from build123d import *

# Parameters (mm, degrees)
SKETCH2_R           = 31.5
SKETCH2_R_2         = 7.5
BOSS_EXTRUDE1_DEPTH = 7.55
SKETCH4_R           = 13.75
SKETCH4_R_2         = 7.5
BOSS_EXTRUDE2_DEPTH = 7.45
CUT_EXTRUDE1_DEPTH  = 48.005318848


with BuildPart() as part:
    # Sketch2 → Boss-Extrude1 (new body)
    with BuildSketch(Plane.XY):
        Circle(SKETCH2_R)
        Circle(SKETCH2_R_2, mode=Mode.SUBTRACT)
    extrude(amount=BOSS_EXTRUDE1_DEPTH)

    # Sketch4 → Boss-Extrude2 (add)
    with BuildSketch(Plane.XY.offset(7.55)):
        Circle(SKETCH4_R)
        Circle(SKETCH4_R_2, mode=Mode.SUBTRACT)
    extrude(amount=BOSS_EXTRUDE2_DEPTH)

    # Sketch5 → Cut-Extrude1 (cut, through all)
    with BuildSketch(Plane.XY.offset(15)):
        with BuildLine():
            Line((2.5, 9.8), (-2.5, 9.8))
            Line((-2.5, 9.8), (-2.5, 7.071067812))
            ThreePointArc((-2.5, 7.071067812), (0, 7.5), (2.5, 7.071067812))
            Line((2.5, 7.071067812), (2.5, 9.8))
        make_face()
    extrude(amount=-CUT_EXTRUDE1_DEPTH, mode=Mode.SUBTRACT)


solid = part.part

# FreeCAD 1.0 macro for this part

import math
import FreeCAD as App
import Part
import Sketcher

doc = App.newDocument("Part")
body = doc.addObject("PartDesign::Body", "Body")

# Sketch on XY plane
sketch1 = doc.addObject("Sketcher::SketchObject", "Sketch")
body.addObject(sketch1)
sketch1.AttachmentSupport = (doc.XY_Plane, [""])
sketch1.MapMode = "FlatFace"
sketch1.addGeometry([
    Part.Circle(App.Vector(0, 0, 0), App.Vector(0, 0, 1), 32),
    Part.Circle(App.Vector(0, 0, 0), App.Vector(0, 0, 1), 8),
], False)
sketch1.addConstraint([
    Sketcher.Constraint("Coincident", 0, 3, -1, 1),
    Sketcher.Constraint("Coincident", 1, 3, -1, 1),
    Sketcher.Constraint("Diameter", 0, 63.0),
    Sketcher.Constraint("Diameter", 1, 15.0),
])
pad1 = doc.addObject("PartDesign::Pad", "Pad")
body.addObject(pad1)
pad1.Profile = sketch1
pad1.Length = 7.55

# Sketch on XY plane
sketch2 = doc.addObject("Sketcher::SketchObject", "Sketch001")
body.addObject(sketch2)
sketch2.AttachmentSupport = (doc.XY_Plane, [""])
sketch2.MapMode = "FlatFace"
sketch2.AttachmentOffset = App.Placement(App.Vector(0, 0, 7.55), App.Rotation())
sketch2.addGeometry([
    Part.Circle(App.Vector(0, 0, 0), App.Vector(0, 0, 1), 14),
    Part.Circle(App.Vector(0, 0, 0), App.Vector(0, 0, 1), 8),
], False)
sketch2.addConstraint([
    Sketcher.Constraint("Coincident", 0, 3, -1, 1),
    Sketcher.Constraint("Coincident", 1, 3, -1, 1),
    Sketcher.Constraint("Diameter", 1, 15.0),
    Sketcher.Constraint("Diameter", 0, 27.5),
])
pad2 = doc.addObject("PartDesign::Pad", "Pad001")
body.addObject(pad2)
pad2.Profile = sketch2
pad2.Length = 7.45

# Sketch on XY plane
sketch3 = doc.addObject("Sketcher::SketchObject", "Sketch002")
body.addObject(sketch3)
sketch3.AttachmentSupport = (doc.XY_Plane, [""])
sketch3.MapMode = "FlatFace"
sketch3.AttachmentOffset = App.Placement(App.Vector(0, 0, 15), App.Rotation())
sketch3.addGeometry([
    Part.LineSegment(App.Vector(2.5, 9.8, 0), App.Vector(-2.5, 9.8, 0)),
    Part.LineSegment(App.Vector(-2.5, 9.8, 0), App.Vector(-2.5, 7.1, 0)),
    Part.ArcOfCircle(Part.Circle(App.Vector(0, 0, 0), App.Vector(0, 0, 1), 7.5), math.radians(71), math.radians(109)),
    Part.LineSegment(App.Vector(2.5, 7.1, 0), App.Vector(2.5, 9.8, 0)),
], False)
sketch3.addConstraint([
    Sketcher.Constraint("Coincident", 0, 2, 1, 1),
    Sketcher.Constraint("Coincident", 1, 2, 2, 2),
    Sketcher.Constraint("Coincident", 2, 1, 3, 1),
    Sketcher.Constraint("Coincident", 3, 2, 0, 1),
    Sketcher.Constraint("Horizontal", 0),
    Sketcher.Constraint("Vertical", 1),
    Sketcher.Constraint("Vertical", 3),
    Sketcher.Constraint("Coincident", 2, 3, -1, 1),
    Sketcher.Constraint("Horizontal", 1, 2, 2, 1),
    Sketcher.Constraint("Radius", 2, 7.5),
    Sketcher.Constraint("DistanceX", 0, 2, 0, 1, 5.0),
    Sketcher.Constraint("DistanceY", -1, 1, 0, 2, 9.8),
])
pocket1 = doc.addObject("PartDesign::Pocket", "Pocket")
body.addObject(pocket1)
pocket1.Profile = sketch3
pocket1.Type = "ThroughAll"

doc.recompute()
